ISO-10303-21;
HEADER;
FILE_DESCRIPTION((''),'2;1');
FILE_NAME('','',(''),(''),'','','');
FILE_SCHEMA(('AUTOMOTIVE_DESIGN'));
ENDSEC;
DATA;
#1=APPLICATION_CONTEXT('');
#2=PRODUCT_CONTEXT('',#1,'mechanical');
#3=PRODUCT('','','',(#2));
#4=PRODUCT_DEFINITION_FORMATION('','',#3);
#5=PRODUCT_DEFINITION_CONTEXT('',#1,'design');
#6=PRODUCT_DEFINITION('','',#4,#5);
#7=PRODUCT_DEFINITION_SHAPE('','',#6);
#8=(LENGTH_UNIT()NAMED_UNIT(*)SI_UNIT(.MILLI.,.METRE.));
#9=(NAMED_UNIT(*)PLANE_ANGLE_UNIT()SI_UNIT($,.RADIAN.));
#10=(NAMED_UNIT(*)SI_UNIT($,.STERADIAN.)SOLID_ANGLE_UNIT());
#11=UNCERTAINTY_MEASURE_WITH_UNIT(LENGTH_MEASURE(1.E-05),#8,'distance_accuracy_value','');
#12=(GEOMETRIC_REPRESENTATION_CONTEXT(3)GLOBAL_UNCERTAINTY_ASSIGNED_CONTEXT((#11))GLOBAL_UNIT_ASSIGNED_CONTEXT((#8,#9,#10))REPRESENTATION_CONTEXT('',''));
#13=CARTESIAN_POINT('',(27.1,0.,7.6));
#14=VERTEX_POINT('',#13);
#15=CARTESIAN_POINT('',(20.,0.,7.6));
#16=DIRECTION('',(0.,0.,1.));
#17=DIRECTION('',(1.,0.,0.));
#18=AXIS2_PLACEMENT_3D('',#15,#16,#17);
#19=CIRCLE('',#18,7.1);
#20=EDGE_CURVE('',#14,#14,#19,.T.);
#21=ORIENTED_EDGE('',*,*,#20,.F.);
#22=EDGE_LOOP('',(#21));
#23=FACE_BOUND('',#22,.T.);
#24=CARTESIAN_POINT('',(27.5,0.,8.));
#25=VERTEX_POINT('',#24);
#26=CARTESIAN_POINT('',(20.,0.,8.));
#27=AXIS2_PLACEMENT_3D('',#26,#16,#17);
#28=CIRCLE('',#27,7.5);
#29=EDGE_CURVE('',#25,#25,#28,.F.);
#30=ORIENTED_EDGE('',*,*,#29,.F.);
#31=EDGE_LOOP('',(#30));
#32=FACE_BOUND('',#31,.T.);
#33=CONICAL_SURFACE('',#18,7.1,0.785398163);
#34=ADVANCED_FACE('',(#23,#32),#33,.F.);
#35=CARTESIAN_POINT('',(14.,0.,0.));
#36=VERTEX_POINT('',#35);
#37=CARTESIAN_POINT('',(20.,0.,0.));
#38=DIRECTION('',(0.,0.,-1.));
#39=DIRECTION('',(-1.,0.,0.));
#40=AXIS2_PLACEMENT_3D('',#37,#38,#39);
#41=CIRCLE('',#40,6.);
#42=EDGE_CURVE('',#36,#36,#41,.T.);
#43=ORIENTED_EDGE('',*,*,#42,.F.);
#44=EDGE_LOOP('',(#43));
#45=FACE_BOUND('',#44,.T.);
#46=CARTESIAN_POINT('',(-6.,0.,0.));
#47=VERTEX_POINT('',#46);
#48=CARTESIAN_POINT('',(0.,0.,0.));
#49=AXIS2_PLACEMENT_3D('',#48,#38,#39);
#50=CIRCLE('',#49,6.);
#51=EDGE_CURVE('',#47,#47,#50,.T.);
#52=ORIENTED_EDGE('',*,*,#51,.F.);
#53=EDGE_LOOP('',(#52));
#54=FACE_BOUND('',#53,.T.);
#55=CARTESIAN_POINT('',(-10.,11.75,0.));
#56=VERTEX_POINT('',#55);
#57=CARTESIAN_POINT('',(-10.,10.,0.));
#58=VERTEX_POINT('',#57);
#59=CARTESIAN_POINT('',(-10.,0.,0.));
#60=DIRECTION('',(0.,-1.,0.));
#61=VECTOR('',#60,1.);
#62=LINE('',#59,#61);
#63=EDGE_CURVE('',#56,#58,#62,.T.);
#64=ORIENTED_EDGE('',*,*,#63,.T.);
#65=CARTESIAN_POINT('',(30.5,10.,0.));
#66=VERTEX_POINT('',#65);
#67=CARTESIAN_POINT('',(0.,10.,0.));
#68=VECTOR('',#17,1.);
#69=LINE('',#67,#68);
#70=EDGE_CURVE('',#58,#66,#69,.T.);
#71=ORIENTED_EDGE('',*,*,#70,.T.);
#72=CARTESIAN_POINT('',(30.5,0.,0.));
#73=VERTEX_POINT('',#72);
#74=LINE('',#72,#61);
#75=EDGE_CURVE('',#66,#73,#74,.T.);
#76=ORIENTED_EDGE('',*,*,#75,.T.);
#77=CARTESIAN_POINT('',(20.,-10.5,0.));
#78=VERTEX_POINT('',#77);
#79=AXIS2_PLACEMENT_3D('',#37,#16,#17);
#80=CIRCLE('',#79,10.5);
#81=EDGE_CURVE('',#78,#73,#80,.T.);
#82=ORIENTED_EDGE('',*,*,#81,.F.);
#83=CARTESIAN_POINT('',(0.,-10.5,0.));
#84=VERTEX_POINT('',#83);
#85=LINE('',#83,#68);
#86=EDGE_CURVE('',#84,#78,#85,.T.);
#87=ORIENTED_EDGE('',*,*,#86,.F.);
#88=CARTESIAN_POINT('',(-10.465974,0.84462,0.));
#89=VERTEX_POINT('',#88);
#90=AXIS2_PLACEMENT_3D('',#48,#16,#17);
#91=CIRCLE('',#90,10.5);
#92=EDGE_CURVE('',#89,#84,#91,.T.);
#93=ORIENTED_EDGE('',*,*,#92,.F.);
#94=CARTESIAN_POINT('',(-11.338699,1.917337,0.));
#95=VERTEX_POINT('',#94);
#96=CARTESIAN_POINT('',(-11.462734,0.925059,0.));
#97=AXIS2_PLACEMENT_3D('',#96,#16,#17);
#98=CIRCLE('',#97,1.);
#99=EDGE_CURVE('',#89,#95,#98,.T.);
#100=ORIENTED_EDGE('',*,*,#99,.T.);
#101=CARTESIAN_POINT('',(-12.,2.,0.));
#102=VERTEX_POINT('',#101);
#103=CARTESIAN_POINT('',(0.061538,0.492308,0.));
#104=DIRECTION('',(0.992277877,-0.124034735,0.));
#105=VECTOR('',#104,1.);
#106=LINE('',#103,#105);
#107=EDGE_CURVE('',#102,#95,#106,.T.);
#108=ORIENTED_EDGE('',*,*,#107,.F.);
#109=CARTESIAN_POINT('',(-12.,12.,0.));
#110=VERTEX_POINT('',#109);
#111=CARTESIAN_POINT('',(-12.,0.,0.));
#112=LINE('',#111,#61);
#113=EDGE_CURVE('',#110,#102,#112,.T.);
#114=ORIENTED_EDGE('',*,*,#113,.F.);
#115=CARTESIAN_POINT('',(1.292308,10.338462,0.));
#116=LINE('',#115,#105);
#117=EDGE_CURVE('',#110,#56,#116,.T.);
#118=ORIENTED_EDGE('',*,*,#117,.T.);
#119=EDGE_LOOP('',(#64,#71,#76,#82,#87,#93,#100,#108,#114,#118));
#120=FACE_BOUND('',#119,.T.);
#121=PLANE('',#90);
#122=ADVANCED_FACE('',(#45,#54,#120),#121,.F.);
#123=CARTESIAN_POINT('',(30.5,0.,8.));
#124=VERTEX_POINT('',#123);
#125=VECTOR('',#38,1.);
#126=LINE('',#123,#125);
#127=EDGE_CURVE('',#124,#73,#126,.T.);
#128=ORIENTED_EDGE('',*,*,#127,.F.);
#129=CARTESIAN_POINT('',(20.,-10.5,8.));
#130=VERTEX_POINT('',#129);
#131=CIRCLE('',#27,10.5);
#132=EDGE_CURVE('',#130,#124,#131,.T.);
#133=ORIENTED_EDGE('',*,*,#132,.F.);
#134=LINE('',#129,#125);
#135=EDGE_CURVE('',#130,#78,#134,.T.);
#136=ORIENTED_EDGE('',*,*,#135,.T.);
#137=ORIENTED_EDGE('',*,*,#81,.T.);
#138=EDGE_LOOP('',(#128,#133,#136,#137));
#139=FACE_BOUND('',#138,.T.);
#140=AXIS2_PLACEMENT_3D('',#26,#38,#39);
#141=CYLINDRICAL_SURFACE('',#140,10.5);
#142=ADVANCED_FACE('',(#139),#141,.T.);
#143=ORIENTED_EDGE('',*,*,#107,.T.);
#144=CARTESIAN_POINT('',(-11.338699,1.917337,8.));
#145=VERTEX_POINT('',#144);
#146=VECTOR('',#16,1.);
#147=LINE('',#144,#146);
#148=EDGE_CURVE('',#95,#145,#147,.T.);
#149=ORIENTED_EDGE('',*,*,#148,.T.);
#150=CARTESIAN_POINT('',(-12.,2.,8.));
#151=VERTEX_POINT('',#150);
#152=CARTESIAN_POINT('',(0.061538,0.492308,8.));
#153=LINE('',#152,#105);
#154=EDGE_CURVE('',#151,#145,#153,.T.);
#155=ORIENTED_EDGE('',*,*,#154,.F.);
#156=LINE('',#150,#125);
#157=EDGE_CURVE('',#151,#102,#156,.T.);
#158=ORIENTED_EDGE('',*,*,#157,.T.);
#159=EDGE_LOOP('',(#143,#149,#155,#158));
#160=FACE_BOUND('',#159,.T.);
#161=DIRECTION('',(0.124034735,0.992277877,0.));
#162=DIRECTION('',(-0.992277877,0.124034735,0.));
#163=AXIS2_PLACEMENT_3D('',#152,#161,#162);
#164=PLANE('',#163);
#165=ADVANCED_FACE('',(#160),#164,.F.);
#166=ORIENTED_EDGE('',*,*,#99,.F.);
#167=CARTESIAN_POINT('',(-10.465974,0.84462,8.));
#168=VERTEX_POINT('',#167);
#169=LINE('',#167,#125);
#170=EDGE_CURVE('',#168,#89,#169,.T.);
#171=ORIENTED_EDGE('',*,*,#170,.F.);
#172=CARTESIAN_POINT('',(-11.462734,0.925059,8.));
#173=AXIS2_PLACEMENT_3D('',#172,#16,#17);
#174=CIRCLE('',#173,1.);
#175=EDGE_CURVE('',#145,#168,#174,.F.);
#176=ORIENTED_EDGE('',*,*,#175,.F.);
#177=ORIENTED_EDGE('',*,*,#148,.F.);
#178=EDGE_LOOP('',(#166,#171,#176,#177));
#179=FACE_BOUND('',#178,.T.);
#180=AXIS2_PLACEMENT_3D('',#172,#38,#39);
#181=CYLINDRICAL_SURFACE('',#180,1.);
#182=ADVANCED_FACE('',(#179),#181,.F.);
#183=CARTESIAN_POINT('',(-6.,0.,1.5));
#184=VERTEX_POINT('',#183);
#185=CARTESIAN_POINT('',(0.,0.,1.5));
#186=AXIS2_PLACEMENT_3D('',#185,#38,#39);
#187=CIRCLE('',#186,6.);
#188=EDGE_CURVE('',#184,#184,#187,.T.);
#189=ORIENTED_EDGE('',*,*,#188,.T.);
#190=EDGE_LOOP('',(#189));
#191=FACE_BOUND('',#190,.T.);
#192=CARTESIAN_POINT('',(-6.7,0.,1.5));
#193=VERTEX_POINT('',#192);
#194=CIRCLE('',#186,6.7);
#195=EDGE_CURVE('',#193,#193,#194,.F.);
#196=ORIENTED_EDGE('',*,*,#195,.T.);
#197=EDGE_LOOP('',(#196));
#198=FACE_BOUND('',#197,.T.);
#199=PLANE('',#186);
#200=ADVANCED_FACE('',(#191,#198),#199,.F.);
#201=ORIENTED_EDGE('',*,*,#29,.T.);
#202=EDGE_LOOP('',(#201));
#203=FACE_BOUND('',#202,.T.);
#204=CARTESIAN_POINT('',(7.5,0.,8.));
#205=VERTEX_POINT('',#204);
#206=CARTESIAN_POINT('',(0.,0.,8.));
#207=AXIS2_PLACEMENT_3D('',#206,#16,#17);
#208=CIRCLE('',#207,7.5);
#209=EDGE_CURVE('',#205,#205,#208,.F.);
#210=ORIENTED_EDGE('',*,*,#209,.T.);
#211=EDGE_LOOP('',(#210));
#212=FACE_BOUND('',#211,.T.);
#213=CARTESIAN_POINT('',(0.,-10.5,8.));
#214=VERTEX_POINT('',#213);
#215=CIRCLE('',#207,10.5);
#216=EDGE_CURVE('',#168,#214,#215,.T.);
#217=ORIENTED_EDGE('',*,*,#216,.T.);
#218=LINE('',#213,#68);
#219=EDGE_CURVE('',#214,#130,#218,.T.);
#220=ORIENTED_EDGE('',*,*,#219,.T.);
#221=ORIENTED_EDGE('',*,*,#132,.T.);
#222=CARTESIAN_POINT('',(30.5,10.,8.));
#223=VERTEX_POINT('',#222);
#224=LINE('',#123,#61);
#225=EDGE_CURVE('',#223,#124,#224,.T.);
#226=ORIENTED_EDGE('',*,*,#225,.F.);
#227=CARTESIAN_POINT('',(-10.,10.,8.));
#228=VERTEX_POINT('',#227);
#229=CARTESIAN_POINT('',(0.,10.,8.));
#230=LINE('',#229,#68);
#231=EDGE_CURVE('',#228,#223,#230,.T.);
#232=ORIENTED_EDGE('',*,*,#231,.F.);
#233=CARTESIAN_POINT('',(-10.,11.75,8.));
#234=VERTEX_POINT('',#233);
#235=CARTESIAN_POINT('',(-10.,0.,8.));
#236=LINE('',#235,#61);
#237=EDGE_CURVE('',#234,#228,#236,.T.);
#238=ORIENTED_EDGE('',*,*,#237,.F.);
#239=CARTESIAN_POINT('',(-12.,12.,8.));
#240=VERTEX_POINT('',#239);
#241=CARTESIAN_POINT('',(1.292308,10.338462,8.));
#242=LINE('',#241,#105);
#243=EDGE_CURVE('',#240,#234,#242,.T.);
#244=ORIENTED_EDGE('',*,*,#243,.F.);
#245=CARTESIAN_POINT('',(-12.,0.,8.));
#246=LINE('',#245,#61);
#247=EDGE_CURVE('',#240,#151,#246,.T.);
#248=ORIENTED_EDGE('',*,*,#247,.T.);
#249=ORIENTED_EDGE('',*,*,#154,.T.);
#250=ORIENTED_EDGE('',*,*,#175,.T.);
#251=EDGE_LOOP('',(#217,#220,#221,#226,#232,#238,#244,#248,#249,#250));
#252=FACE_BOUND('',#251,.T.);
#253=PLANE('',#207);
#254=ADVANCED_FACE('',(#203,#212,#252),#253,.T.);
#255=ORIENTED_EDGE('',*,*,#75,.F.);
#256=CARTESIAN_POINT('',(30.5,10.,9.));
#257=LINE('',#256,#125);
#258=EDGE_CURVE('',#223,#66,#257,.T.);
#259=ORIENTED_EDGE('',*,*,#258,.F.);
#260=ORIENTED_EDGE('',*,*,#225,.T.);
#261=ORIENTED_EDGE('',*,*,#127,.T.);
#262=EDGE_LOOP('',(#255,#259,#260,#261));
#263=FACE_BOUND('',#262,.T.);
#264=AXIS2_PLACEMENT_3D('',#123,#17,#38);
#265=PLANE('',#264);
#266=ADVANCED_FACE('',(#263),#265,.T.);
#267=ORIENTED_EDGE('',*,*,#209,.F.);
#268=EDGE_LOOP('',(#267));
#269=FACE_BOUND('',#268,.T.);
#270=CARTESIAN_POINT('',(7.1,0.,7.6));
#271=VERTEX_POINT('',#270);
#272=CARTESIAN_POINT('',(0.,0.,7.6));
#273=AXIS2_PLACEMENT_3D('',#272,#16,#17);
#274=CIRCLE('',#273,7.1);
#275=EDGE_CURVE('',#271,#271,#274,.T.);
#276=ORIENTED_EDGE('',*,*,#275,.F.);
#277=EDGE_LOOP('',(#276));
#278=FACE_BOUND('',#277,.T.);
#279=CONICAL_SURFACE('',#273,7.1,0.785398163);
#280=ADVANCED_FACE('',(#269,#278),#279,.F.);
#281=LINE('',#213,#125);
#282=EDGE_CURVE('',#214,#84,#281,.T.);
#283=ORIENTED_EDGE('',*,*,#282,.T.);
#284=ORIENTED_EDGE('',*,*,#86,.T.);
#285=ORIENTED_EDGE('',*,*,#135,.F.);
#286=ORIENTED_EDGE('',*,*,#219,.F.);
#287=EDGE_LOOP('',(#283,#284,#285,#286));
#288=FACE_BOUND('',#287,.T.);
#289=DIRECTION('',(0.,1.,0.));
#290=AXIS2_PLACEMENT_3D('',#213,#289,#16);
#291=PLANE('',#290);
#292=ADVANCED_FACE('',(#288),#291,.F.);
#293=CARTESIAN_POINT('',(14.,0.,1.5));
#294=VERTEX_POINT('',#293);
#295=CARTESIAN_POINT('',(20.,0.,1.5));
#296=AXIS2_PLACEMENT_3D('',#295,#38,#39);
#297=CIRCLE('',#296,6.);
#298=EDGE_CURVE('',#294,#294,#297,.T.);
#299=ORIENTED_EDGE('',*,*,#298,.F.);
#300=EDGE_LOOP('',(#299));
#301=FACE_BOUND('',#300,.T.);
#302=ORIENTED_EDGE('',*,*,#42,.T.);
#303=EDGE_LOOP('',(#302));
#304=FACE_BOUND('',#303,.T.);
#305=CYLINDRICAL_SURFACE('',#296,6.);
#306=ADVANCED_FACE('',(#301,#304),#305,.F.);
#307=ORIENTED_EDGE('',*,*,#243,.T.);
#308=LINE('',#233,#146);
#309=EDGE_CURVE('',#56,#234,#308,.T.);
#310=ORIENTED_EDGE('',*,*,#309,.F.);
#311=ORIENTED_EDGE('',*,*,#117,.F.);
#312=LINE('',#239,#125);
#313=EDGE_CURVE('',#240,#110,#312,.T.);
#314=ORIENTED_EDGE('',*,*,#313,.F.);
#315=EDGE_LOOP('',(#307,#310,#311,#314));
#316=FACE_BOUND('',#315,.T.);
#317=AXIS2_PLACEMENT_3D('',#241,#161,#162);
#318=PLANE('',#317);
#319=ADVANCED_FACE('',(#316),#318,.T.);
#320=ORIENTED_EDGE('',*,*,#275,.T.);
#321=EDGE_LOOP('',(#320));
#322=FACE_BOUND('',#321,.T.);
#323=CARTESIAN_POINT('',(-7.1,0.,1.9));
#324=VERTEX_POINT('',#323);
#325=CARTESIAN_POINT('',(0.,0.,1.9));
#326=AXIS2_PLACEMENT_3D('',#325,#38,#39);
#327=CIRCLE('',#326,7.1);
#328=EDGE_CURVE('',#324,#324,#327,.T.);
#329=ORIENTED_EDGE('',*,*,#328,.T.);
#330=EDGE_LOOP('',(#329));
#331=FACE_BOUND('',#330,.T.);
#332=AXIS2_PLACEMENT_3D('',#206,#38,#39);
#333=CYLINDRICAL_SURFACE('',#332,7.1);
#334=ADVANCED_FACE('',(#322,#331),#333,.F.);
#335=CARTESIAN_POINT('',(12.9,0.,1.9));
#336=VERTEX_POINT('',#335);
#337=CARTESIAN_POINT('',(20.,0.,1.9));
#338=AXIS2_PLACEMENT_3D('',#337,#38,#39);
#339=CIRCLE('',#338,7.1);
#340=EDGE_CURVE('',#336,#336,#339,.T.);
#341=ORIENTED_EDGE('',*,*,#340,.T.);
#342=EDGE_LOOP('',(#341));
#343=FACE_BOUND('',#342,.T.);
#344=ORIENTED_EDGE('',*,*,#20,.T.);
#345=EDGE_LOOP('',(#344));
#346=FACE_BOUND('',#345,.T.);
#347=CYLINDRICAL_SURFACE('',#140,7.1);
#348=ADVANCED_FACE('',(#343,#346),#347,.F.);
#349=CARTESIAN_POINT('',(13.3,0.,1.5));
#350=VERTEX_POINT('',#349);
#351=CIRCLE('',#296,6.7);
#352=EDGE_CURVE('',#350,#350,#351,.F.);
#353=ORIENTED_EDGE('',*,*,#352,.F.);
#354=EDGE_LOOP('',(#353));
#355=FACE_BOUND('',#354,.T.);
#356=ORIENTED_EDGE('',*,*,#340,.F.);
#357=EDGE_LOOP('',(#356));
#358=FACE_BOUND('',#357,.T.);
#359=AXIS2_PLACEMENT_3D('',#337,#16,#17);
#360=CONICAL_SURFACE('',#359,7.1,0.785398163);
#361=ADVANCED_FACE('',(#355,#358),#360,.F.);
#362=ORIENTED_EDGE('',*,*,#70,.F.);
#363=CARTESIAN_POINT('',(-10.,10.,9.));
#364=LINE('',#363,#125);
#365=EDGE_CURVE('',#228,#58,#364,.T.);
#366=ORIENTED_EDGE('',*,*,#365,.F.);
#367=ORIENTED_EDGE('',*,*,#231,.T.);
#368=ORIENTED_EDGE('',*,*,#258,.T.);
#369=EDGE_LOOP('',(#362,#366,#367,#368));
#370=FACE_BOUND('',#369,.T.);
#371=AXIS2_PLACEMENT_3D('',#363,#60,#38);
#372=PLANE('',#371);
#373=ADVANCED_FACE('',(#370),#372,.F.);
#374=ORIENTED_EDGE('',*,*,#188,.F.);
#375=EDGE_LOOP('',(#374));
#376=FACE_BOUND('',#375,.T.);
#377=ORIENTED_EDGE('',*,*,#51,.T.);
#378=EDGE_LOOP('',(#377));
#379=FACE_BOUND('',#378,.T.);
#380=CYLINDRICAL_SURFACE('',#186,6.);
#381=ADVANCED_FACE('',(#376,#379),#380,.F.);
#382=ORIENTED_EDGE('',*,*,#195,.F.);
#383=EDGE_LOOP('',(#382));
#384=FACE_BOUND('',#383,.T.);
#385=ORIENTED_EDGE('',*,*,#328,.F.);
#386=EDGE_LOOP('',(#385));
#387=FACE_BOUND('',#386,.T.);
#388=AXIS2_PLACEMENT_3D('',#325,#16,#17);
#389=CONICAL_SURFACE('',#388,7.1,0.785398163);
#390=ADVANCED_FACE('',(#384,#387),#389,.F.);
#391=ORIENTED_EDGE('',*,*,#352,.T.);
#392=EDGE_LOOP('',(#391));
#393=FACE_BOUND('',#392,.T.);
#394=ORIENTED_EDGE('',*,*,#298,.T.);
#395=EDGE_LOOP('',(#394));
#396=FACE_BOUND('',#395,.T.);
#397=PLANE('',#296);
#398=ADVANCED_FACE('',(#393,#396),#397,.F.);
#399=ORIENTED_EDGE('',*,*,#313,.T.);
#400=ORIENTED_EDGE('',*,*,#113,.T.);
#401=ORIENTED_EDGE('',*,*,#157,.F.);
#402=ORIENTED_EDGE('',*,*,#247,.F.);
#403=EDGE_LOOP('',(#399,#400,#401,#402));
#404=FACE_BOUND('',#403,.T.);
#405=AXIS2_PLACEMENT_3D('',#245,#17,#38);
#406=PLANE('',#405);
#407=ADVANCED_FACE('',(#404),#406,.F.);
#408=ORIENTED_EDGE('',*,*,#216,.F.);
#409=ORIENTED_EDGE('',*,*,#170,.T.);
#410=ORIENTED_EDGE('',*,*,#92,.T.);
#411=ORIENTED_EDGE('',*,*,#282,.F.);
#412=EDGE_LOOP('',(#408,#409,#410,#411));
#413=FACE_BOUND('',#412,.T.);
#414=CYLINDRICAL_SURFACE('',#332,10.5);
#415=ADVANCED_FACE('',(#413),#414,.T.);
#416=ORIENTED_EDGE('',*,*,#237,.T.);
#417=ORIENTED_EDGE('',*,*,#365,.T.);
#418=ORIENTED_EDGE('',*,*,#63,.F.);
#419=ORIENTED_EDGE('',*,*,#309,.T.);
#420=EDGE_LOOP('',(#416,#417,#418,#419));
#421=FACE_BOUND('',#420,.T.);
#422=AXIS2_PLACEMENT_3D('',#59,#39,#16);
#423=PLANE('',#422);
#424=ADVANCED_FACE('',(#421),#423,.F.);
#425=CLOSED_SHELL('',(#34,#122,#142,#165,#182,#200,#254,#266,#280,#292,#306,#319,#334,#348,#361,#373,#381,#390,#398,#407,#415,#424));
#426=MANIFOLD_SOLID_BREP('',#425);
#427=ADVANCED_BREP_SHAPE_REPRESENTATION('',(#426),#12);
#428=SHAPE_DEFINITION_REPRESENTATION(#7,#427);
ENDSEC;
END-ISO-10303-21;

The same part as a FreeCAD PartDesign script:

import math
import FreeCAD as App
import Part
import Sketcher

V = App.Vector


def edges_at(feature, points):
    """Names of the edges that pass closest to the given points."""
    edges = feature.Shape.Edges
    near = lambda p: min(range(len(edges)), key=lambda i: edges[i].distToShape(Part.Vertex(*p))[0])
    return sorted({f"Edge{near(p) + 1}" for p in points})


def add_polygon(sketch, points):
    """Adds a closed chain of lines whose ends are joined by coincident constraints."""
    first, n = sketch.GeometryCount, len(points)
    for a, b in zip(points, points[1:] + points[:1]):
        sketch.addGeometry(Part.LineSegment(App.Vector(*a, 0), App.Vector(*b, 0)), False)
    for i in range(n):
        sketch.addConstraint(Sketcher.Constraint("Coincident", first + i, 2, first + (i + 1) % n, 1))

doc = App.newDocument("Part")
body = doc.addObject("PartDesign::Body", "Body")

sketch1 = doc.addObject("Sketcher::SketchObject", "Sketch")
body.addObject(sketch1)
sketch1.AttachmentSupport = (doc.XY_Plane, [""])
sketch1.MapMode = "FlatFace"
sketch1.addGeometry(Part.LineSegment(V(-12, 2, 0), V(-10.3, 1.8, 0)), False)
sketch1.addGeometry(Part.ArcOfCircle(Part.Circle(V(0, 0, 0), V(0, 0, 1), 10.5), math.radians(170), math.radians(270)), False)
sketch1.addGeometry(Part.LineSegment(V(0, -10.5, 0), V(20, -10.5, 0)), False)
sketch1.addGeometry(Part.ArcOfCircle(Part.Circle(V(20, 0, 0), V(0, 0, 1), 10.5), math.radians(-90), math.radians(0)), False)
sketch1.addGeometry(Part.LineSegment(V(30.5, 0, 0), V(30.5, 10.5, 0)), False)
sketch1.addGeometry(Part.LineSegment(V(30.5, 10.5, 0), V(0, 10.5, 0)), False)
sketch1.addGeometry(Part.LineSegment(V(0, 10.5, 0), V(-12, 12, 0)), False)
sketch1.addGeometry(Part.LineSegment(V(-12, 12, 0), V(-12, 2, 0)), False)
sketch1.addGeometry(Part.Circle(V(0, 0, 0), V(0, 0, 1), 7.1), False)
sketch1.addGeometry(Part.Circle(V(20, 0, 0), V(0, 0, 1), 7.1), False)
sketch1.addConstraint(Sketcher.Constraint("Coincident", 0, 2, 1, 1))
sketch1.addConstraint(Sketcher.Constraint("Tangent", 1, 2, 2, 1))
sketch1.addConstraint(Sketcher.Constraint("Tangent", 2, 2, 3, 1))
sketch1.addConstraint(Sketcher.Constraint("Tangent", 3, 2, 4, 1))
sketch1.addConstraint(Sketcher.Constraint("Coincident", 4, 2, 5, 1))
sketch1.addConstraint(Sketcher.Constraint("Coincident", 5, 2, 6, 1))
sketch1.addConstraint(Sketcher.Constraint("Coincident", 6, 2, 7, 1))
sketch1.addConstraint(Sketcher.Constraint("Coincident", 7, 2, 0, 1))
sketch1.addConstraint(Sketcher.Constraint("Horizontal", 2))
sketch1.addConstraint(Sketcher.Constraint("Vertical", 4))
sketch1.addConstraint(Sketcher.Constraint("Horizontal", 5))
sketch1.addConstraint(Sketcher.Constraint("Vertical", 7))
sketch1.addConstraint(Sketcher.Constraint("Coincident", 1, 3, -1, 1))
sketch1.addConstraint(Sketcher.Constraint("Coincident", 8, 3, -1, 1))
sketch1.addConstraint(Sketcher.Constraint("Coincident", 9, 3, 3, 3))
sketch1.addConstraint(Sketcher.Constraint("Equal", 1, 3))
sketch1.addConstraint(Sketcher.Constraint("Equal", 8, 9))
sketch1.addConstraint(Sketcher.Constraint("Symmetric", 1, 2, 5, 2, -1, 1))
sketch1.addConstraint(Sketcher.Constraint("Parallel", 0, 6))
sketch1.addConstraint(Sketcher.Constraint("Diameter", 8, 14.2))
sketch1.addConstraint(Sketcher.Constraint("Radius", 1, 10.5))
sketch1.addConstraint(Sketcher.Constraint("DistanceX", 2, 1, 2, 2, 20.0))
sketch1.addConstraint(Sketcher.Constraint("DistanceY", 7, 2, 7, 1, 10.0))
sketch1.addConstraint(Sketcher.Constraint("DistanceX", 6, 2, -1, 1, 12.0))
sketch1.addConstraint(Sketcher.Constraint("DistanceY", -1, 1, 6, 2, 12.0))
pad1 = doc.addObject("PartDesign::Pad", "Pad")
body.addObject(pad1)
pad1.Profile = sketch1
pad1.Length = 8

sketch2 = doc.addObject("Sketcher::SketchObject", "Sketch001")
body.addObject(sketch2)
sketch2.AttachmentSupport = (doc.XY_Plane, [""])
sketch2.MapMode = "FlatFace"
sketch2.addGeometry(Part.Circle(V(20, 0, 0), V(0, 0, 1), 7), False)
sketch2.addGeometry(Part.Circle(V(20, 0, 0), V(0, 0, 1), 6), False)
sketch2.addGeometry(Part.Circle(V(0, 0, 0), V(0, 0, 1), 7), False)
sketch2.addGeometry(Part.Circle(V(0, 0, 0), V(0, 0, 1), 6), False)
sketch2.addConstraint(Sketcher.Constraint("Coincident", 2, 3, -1, 1))
sketch2.addConstraint(Sketcher.Constraint("Coincident", 3, 3, -1, 1))
sketch2.addConstraint(Sketcher.Constraint("Coincident", 1, 3, 0, 3))
sketch2.addConstraint(Sketcher.Constraint("Equal", 0, 2))
sketch2.addConstraint(Sketcher.Constraint("Equal", 1, 3))
sketch2.addConstraint(Sketcher.Constraint("PointOnObject", 0, 3, -1))
sketch2.addConstraint(Sketcher.Constraint("Diameter", 1, 12.0))
sketch2.addConstraint(Sketcher.Constraint("Diameter", 0, 14.2))
sketch2.addConstraint(Sketcher.Constraint("DistanceX", -1, 1, 0, 3, 20.0))
pad2 = doc.addObject("PartDesign::Pad", "Pad001")
body.addObject(pad2)
pad2.Profile = sketch2
pad2.Length = 1.5

sketch3 = doc.addObject("Sketcher::SketchObject", "Sketch002")
body.addObject(sketch3)
sketch3.AttachmentSupport = (doc.YZ_Plane, [""])
sketch3.MapMode = "FlatFace"
add_polygon(sketch3, [(20, 9), (10, 9), (10, -1), (20, -1)])
sketch3.addConstraint(Sketcher.Constraint("Horizontal", 0))
sketch3.addConstraint(Sketcher.Constraint("Vertical", 1))
sketch3.addConstraint(Sketcher.Constraint("Horizontal", 2))
sketch3.addConstraint(Sketcher.Constraint("Vertical", 3))
sketch3.addConstraint(Sketcher.Constraint("Equal", 2, 1))
sketch3.addConstraint(Sketcher.Constraint("DistanceX", 0, 2, 0, 1, 10.0))
sketch3.addConstraint(Sketcher.Constraint("DistanceX", -1, 1, 0, 2, 10.0))
sketch3.addConstraint(Sketcher.Constraint("DistanceY", -1, 1, 0, 2, 9.0))
pocket1 = doc.addObject("PartDesign::Pocket", "Pocket")
body.addObject(pocket1)
pocket1.Profile = sketch3
pocket1.Type = "TwoLengths"
pocket1.Length = 31.5
pocket1.Length2 = 10
pocket1.Reversed = True
doc.recompute()

fillet = doc.addObject("PartDesign::Fillet", "Fillet")
body.addObject(fillet)
fillet.Base = (pocket1, edges_at(pocket1, [(-10.346, 1.793, 4)]))
fillet.Radius = 1
doc.recompute()

chamfer = doc.addObject("PartDesign::Chamfer", "Chamfer")
body.addObject(chamfer)
chamfer.Base = (fillet, edges_at(fillet, [
    (12.9, 0, 1.5),
    (-7.1, 0, 1.5),
    (12.9, 0, 8),
    (-7.1, 0, 8),
]))
chamfer.Size = 0.4

doc.recompute()
